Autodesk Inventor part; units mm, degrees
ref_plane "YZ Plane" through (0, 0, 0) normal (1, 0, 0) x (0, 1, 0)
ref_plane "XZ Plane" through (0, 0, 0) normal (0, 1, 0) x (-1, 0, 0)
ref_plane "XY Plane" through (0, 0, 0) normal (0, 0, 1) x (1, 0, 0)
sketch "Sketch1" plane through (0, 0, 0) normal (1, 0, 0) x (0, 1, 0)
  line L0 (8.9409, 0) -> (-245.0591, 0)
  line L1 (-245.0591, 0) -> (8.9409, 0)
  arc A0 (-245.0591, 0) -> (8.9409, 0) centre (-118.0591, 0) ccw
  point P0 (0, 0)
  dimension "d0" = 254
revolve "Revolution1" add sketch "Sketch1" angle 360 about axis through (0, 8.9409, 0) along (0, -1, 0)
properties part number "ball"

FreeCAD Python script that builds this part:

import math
import FreeCAD as App
import Part
import Sketcher
Q = App.Units.Quantity

doc = App.newDocument("Part")
body = doc.addObject("PartDesign::Body", "Body")

sketch1 = doc.addObject("Sketcher::SketchObject", "Sketch")
body.addObject(sketch1)
sketch1.AttachmentSupport = (doc.YZ_Plane, [""])
sketch1.MapMode = "FlatFace"
sketch1.addGeometry([
    Part.ArcOfCircle(Part.Circle(App.Vector(-118, 0, 0), App.Vector(0, 0, 1), 127), math.radians(180), math.radians(360)),
    Part.LineSegment(App.Vector(9, 0, 0), App.Vector(-245, 0, 0)),
], False)
sketch1.addConstraint([
    Sketcher.Constraint("Coincident", 0, 1, 1, 2),
    Sketcher.Constraint("Coincident", 1, 1, 0, 2),
    Sketcher.Constraint("Horizontal", 1),
    Sketcher.Constraint("PointOnObject", 0, 3, -1),
    Sketcher.Constraint("PointOnObject", 0, 1, -1),
    Sketcher.Constraint("Radius", 0, Q("5 in")),
    Sketcher.Constraint("DistanceX", 0, 3, -1, 1, Q("4.648 in")),
])
revolution = doc.addObject("PartDesign::Revolution", "Revolution")
body.addObject(revolution)
revolution.Profile = sketch1
revolution.ReferenceAxis = (sketch1, ["H_Axis"])
revolution.Angle = 360

doc.recompute()
